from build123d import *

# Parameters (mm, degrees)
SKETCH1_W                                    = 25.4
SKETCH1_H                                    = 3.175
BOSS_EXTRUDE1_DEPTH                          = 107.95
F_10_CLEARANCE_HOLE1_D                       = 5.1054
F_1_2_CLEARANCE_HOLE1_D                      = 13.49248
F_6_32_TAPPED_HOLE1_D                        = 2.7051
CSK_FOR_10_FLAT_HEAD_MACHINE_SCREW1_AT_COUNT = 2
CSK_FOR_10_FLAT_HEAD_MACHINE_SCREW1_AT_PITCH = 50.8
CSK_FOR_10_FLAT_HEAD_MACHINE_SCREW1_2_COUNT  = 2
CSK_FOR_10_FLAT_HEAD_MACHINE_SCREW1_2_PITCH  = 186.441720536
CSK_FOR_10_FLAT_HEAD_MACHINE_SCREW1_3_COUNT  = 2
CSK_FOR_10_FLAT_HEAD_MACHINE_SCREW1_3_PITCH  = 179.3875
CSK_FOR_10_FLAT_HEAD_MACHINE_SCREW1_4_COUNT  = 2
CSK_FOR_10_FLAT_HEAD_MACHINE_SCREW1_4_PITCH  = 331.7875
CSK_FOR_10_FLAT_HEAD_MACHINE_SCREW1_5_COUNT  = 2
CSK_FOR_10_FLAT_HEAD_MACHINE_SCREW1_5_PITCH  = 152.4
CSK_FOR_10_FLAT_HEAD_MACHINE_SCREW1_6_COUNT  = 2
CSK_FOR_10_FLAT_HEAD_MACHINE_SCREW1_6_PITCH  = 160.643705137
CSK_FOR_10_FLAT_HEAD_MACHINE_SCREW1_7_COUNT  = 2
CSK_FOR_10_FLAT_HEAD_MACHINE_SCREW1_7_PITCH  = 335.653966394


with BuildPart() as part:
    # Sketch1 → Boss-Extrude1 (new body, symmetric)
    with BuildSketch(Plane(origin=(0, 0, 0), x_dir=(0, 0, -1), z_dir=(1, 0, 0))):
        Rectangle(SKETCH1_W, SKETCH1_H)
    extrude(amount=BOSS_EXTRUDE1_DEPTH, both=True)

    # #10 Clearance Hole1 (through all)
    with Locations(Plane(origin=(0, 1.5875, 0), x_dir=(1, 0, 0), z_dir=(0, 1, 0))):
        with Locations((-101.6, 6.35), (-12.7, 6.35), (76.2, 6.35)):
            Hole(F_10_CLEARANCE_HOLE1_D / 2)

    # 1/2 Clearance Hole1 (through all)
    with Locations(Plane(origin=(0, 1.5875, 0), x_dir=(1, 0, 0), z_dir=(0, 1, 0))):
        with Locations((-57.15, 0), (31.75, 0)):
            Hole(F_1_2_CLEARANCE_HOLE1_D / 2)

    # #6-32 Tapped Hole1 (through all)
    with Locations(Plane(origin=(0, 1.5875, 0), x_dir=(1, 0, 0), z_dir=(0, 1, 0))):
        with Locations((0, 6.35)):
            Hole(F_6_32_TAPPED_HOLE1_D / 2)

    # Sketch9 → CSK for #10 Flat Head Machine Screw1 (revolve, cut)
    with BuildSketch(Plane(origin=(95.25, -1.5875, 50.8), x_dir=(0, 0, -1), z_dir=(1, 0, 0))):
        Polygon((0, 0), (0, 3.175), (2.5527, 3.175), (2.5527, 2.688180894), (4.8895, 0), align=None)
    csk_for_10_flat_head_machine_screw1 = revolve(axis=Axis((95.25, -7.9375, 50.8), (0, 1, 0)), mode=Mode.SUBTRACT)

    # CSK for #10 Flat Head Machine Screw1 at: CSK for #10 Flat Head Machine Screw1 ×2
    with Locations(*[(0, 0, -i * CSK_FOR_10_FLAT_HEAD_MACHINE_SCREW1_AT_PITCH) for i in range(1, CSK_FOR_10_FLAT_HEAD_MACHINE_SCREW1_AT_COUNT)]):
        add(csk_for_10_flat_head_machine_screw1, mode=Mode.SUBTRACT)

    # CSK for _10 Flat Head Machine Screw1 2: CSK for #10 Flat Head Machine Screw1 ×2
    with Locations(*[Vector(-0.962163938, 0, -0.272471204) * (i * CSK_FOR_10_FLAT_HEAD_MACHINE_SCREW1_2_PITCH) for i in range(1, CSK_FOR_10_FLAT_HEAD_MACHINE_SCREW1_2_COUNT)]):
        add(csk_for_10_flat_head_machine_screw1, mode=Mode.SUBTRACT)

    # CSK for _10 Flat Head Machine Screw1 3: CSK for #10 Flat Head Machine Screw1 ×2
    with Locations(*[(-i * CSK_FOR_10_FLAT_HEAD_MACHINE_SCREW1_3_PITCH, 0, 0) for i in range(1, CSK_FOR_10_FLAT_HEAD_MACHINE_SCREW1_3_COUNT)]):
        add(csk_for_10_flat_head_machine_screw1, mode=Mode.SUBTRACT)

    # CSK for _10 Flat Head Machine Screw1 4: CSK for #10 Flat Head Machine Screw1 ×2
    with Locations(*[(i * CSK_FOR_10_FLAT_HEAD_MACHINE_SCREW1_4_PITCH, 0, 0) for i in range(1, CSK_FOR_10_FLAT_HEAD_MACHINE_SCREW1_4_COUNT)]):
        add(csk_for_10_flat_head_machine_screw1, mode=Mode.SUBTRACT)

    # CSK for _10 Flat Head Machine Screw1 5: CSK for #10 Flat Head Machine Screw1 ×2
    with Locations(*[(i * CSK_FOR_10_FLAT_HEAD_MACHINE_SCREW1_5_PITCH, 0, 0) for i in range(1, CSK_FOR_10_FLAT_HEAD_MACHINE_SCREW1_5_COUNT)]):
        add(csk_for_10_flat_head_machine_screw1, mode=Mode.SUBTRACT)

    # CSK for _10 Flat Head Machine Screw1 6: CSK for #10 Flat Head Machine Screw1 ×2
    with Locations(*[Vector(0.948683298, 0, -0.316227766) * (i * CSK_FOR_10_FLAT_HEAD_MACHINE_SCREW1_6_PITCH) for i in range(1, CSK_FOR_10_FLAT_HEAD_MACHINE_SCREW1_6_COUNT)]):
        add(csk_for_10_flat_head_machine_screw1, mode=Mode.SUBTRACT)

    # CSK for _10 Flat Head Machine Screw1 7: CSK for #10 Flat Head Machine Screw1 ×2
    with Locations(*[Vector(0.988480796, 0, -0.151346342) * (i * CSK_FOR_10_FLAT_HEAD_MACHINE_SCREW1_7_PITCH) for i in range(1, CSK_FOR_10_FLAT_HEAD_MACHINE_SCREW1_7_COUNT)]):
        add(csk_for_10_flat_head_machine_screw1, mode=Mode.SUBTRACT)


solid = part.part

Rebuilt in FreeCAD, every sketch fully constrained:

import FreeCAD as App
import Part
import Sketcher

V = App.Vector
Q = App.Units.Quantity


def add_polygon(sketch, points):
    """Adds a closed chain of lines whose ends are joined by coincident constraints."""
    first, n = sketch.GeometryCount, len(points)
    for a, b in zip(points, points[1:] + points[:1]):
        sketch.addGeometry(Part.LineSegment(App.Vector(*a, 0), App.Vector(*b, 0)), False)
    for i in range(n):
        sketch.addConstraint(Sketcher.Constraint("Coincident", first + i, 2, first + (i + 1) % n, 1))

doc = App.newDocument("Part")
params = doc.addObject("Spreadsheet::Sheet", "Params")
for row, (alias, value) in enumerate([
    ("sketch1_height", "1 in"),
    ("sketch1_width", "0.125 in"),
    ("pad1_length", "8.5 in"),
    ("sketch2_diameter", "0.201 in"),
    ("hole_diameter", "0.201 in"),
    ("hole2_diameter", "0.5312 in"),
    ("hole3_diameter", "0.1065 in"),
    ("sketch5_width", "0.125 in"),
    ("groove_angle", "360 deg"),
    ("linearpattern_pitch", "2 in"),
    ("linearpattern2_pitch", "186.441721 mm"),
    ("linearpattern3_pitch", "7.0625 in"),
    ("linearpattern4_pitch", "13.0625 in"),
    ("linearpattern5_pitch", "6 in"),
    ("linearpattern6_pitch", "160.643705 mm"),
    ("linearpattern7_pitch", "335.653966 mm"),
], start=1):
    params.set(f"A{row}", alias)
    params.set(f"B{row}", "=" + value)
    params.setAlias(f"B{row}", alias)

body = doc.addObject("PartDesign::Body", "Body")

# Sketch on YZ plane
sketch1 = doc.addObject("Sketcher::SketchObject", "Sketch")
body.addObject(sketch1)
sketch1.AttachmentSupport = (doc.YZ_Plane, [""])
sketch1.MapMode = "FlatFace"
add_polygon(sketch1, [(1.6, 12.7), (-1.6, 12.7), (-1.6, -12.7), (1.6, -12.7)])  # lines 0-3
sketch1.addConstraint([
    Sketcher.Constraint("Horizontal", 0),
    Sketcher.Constraint("Vertical", 1),
    Sketcher.Constraint("Horizontal", 2),
    Sketcher.Constraint("Vertical", 3),
    Sketcher.Constraint("Symmetric", 0, 2, 2, 2, -1, 1),
    Sketcher.Constraint("DistanceY", 1, 2, 1, 1, Q("1 in")),
    Sketcher.Constraint("DistanceX", 0, 2, 0, 1, Q("0.125 in")),
])
sketch1.setExpression("Constraints[9]", "Params.sketch1_height")
sketch1.setExpression("Constraints[10]", "Params.sketch1_width")
pad1 = doc.addObject("PartDesign::Pad", "Pad")
body.addObject(pad1)
pad1.Profile = sketch1
pad1.setExpression("Length", "Params.pad1_length")
pad1.Midplane = True

# Sketch on XZ plane
sketch2 = doc.addObject("Sketcher::SketchObject", "Sketch001")
body.addObject(sketch2)
sketch2.AttachmentSupport = (doc.XZ_Plane, [""])
sketch2.MapMode = "FlatFace"
sketch2.AttachmentOffset = App.Placement(V(0, 0, -0.0625 * 25.4), App.Rotation())
sketch2.addGeometry([
    Part.Circle(V(-101.6, -6.3, 0), V(0, 0, 1), 2.6),
    Part.Circle(V(-12.7, -6.3, 0), V(0, 0, 1), 2.6),
    Part.Circle(V(76.2, -6.3, 0), V(0, 0, 1), 2.6),
], False)
sketch2.addConstraint([
    Sketcher.Constraint("Equal", 0, 1),
    Sketcher.Constraint("Equal", 1, 2),
    Sketcher.Constraint("Horizontal", 0, 3, 1, 3),
    Sketcher.Constraint("Horizontal", 1, 3, 2, 3),
    Sketcher.Constraint("Diameter", 0, Q("0.201 in")),
    Sketcher.Constraint("DistanceX", 0, 3, -1, 1, Q("4 in")),
    Sketcher.Constraint("DistanceX", -1, 1, 2, 3, Q("3 in")),
    Sketcher.Constraint("DistanceX", 1, 3, -1, 1, Q("0.5 in")),
    Sketcher.Constraint("DistanceY", 0, 3, -1, 1, Q("0.25 in")),
])
sketch2.setExpression("Constraints[4]", "Params.sketch2_diameter")
doc.recompute()
hole = doc.addObject("PartDesign::Hole", "Hole")
body.addObject(hole)
hole.Profile = sketch2
hole.ThreadType = "None"
hole.setExpression("Diameter", "Params.hole_diameter")
hole.DepthType = "ThroughAll"
hole.Reversed = True

# Sketch on XZ plane
sketch3 = doc.addObject("Sketcher::SketchObject", "Sketch002")
body.addObject(sketch3)
sketch3.AttachmentSupport = (doc.XZ_Plane, [""])
sketch3.MapMode = "FlatFace"
sketch3.AttachmentOffset = App.Placement(V(0, 0, -0.0625 * 25.4), App.Rotation())
sketch3.addGeometry([
    Part.Circle(V(-57, 0, 0), V(0, 0, 1), 7),
    Part.Circle(V(32, 0, 0), V(0, 0, 1), 7),
], False)
sketch3.addConstraint([
    Sketcher.Constraint("Equal", 0, 1),
    Sketcher.Constraint("PointOnObject", 0, 3, -1),
    Sketcher.Constraint("PointOnObject", 1, 3, -1),
    Sketcher.Constraint("Diameter", 0, Q("0.5312 in")),
    Sketcher.Constraint("DistanceX", 0, 3, 1, 3, Q("3.5 in")),
    Sketcher.Constraint("DistanceX", 0, 3, -1, 1, Q("2.25 in")),
])
doc.recompute()
hole2 = doc.addObject("PartDesign::Hole", "Hole001")
body.addObject(hole2)
hole2.Profile = sketch3
hole2.ThreadType = "None"
hole2.setExpression("Diameter", "Params.hole2_diameter")
hole2.DepthType = "ThroughAll"
hole2.Reversed = True

# Sketch on XZ plane
sketch4 = doc.addObject("Sketcher::SketchObject", "Sketch003")
body.addObject(sketch4)
sketch4.AttachmentSupport = (doc.XZ_Plane, [""])
sketch4.MapMode = "FlatFace"
sketch4.AttachmentOffset = App.Placement(V(0, 0, -0.0625 * 25.4), App.Rotation())
sketch4.addGeometry(Part.Circle(V(0, -6.3, 0), V(0, 0, 1), 1.4), False)
sketch4.addConstraint([
    Sketcher.Constraint("PointOnObject", 0, 3, -2),
    Sketcher.Constraint("Diameter", 0, Q("0.1065 in")),
    Sketcher.Constraint("DistanceY", 0, 3, -1, 1, Q("0.25 in")),
])
doc.recompute()
hole3 = doc.addObject("PartDesign::Hole", "Hole002")
body.addObject(hole3)
hole3.Profile = sketch4
hole3.ThreadType = "None"
hole3.setExpression("Diameter", "Params.hole3_diameter")
hole3.DepthType = "ThroughAll"
hole3.Reversed = True

# Sketch on YZ plane
sketch5 = doc.addObject("Sketcher::SketchObject", "Sketch004")
body.addObject(sketch5)
sketch5.AttachmentSupport = (doc.YZ_Plane, [""])
sketch5.MapMode = "FlatFace"
sketch5.AttachmentOffset = App.Placement(V(0, 0, 3.75 * 25.4), App.Rotation())
add_polygon(sketch5, [(1.59, 50.8), (-1.59, 50.8), (-1.59, 45.91), (1.1, 48.25), (1.59, 48.25)])  # lines 0-4
sketch5.addGeometry(Part.LineSegment(V(-1.59, 50.8, 0), V(1.59, 50.8, 0)), True)  # axis
sketch5.addConstraint([
    Sketcher.Constraint("Horizontal", 0),
    Sketcher.Constraint("Vertical", 1),
    Sketcher.Constraint("Horizontal", 3),
    Sketcher.Constraint("Vertical", 4),
    Sketcher.Constraint("Horizontal", 5),
    Sketcher.Constraint("Coincident", 5, 1, 0, 2),
    Sketcher.Constraint("Vertical", 3, 2, 5, 2),
    Sketcher.Constraint("DistanceY", -1, 1, 0, 2, Q("2 in")),
    Sketcher.Constraint("Angle", 2, Q("41 deg")),
    Sketcher.Constraint("DistanceX", 0, 2, 0, 1, Q("0.125 in")),
    Sketcher.Constraint("DistanceY", 1, 2, 1, 1, Q("0.1925 in")),
    Sketcher.Constraint("DistanceY", 4, 1, 4, 2, Q("0.1005 in")),
    Sketcher.Constraint("DistanceX", 0, 2, -1, 1, Q("0.0625 in")),
])
sketch5.setExpression("Constraints[14]", "Params.sketch5_width")
groove = doc.addObject("PartDesign::Groove", "Groove")
body.addObject(groove)
groove.Profile = sketch5
groove.ReferenceAxis = (sketch5, ["Axis0"])
groove.setExpression("Angle", "Params.groove_angle")
doc.recompute()

linearpattern = doc.addObject("PartDesign::LinearPattern", "LinearPattern")
body.addObject(linearpattern)
linearpattern.Originals = [groove]
linearpattern.Direction = (doc.Z_Axis, [""])
linearpattern.Mode = "offset"
linearpattern.setExpression("Offset", "Params.linearpattern_pitch")
linearpattern.Occurrences = 2
linearpattern.Reversed = True
body.Tip = linearpattern
doc.recompute()

datumline = doc.addObject("PartDesign::Line", "DatumLine")
body.addObject(datumline)
datumline.Placement = App.Placement(V(0, 0, 0), App.Rotation(V(0, 0, 1), V(-0.962163938, 0, -0.272471204)))
linearpattern2 = doc.addObject("PartDesign::LinearPattern", "LinearPattern001")
body.addObject(linearpattern2)
linearpattern2.Originals = [groove]
linearpattern2.Direction = (datumline, [""])
linearpattern2.Mode = "offset"
linearpattern2.setExpression("Offset", "Params.linearpattern2_pitch")
linearpattern2.Occurrences = 2
body.Tip = linearpattern2
doc.recompute()

linearpattern3 = doc.addObject("PartDesign::LinearPattern", "LinearPattern002")
body.addObject(linearpattern3)
linearpattern3.Originals = [groove]
linearpattern3.Direction = (doc.X_Axis, [""])
linearpattern3.Mode = "offset"
linearpattern3.setExpression("Offset", "Params.linearpattern3_pitch")
linearpattern3.Occurrences = 2
linearpattern3.Reversed = True
body.Tip = linearpattern3
doc.recompute()

linearpattern4 = doc.addObject("PartDesign::LinearPattern", "LinearPattern003")
body.addObject(linearpattern4)
linearpattern4.Originals = [groove]
linearpattern4.Direction = (doc.X_Axis, [""])
linearpattern4.Mode = "offset"
linearpattern4.setExpression("Offset", "Params.linearpattern4_pitch")
linearpattern4.Occurrences = 2
body.Tip = linearpattern4
doc.recompute()

linearpattern5 = doc.addObject("PartDesign::LinearPattern", "LinearPattern004")
body.addObject(linearpattern5)
linearpattern5.Originals = [groove]
linearpattern5.Direction = (doc.X_Axis, [""])
linearpattern5.Mode = "offset"
linearpattern5.setExpression("Offset", "Params.linearpattern5_pitch")
linearpattern5.Occurrences = 2
body.Tip = linearpattern5
doc.recompute()

datumline2 = doc.addObject("PartDesign::Line", "DatumLine001")
body.addObject(datumline2)
datumline2.Placement = App.Placement(V(0, 0, 0), App.Rotation(V(0, 0, 1), V(0.948683298, 0, -0.316227766)))
linearpattern6 = doc.addObject("PartDesign::LinearPattern", "LinearPattern005")
body.addObject(linearpattern6)
linearpattern6.Originals = [groove]
linearpattern6.Direction = (datumline2, [""])
linearpattern6.Mode = "offset"
linearpattern6.setExpression("Offset", "Params.linearpattern6_pitch")
linearpattern6.Occurrences = 2
body.Tip = linearpattern6
doc.recompute()

datumline3 = doc.addObject("PartDesign::Line", "DatumLine002")
body.addObject(datumline3)
datumline3.Placement = App.Placement(V(0, 0, 0), App.Rotation(V(0, 0, 1), V(0.988480796, 0, -0.151346342)))
linearpattern7 = doc.addObject("PartDesign::LinearPattern", "LinearPattern006")
body.addObject(linearpattern7)
linearpattern7.Originals = [groove]
linearpattern7.Direction = (datumline3, [""])
linearpattern7.Mode = "offset"
linearpattern7.setExpression("Offset", "Params.linearpattern7_pitch")
linearpattern7.Occurrences = 2
body.Tip = linearpattern7

doc.recompute()
